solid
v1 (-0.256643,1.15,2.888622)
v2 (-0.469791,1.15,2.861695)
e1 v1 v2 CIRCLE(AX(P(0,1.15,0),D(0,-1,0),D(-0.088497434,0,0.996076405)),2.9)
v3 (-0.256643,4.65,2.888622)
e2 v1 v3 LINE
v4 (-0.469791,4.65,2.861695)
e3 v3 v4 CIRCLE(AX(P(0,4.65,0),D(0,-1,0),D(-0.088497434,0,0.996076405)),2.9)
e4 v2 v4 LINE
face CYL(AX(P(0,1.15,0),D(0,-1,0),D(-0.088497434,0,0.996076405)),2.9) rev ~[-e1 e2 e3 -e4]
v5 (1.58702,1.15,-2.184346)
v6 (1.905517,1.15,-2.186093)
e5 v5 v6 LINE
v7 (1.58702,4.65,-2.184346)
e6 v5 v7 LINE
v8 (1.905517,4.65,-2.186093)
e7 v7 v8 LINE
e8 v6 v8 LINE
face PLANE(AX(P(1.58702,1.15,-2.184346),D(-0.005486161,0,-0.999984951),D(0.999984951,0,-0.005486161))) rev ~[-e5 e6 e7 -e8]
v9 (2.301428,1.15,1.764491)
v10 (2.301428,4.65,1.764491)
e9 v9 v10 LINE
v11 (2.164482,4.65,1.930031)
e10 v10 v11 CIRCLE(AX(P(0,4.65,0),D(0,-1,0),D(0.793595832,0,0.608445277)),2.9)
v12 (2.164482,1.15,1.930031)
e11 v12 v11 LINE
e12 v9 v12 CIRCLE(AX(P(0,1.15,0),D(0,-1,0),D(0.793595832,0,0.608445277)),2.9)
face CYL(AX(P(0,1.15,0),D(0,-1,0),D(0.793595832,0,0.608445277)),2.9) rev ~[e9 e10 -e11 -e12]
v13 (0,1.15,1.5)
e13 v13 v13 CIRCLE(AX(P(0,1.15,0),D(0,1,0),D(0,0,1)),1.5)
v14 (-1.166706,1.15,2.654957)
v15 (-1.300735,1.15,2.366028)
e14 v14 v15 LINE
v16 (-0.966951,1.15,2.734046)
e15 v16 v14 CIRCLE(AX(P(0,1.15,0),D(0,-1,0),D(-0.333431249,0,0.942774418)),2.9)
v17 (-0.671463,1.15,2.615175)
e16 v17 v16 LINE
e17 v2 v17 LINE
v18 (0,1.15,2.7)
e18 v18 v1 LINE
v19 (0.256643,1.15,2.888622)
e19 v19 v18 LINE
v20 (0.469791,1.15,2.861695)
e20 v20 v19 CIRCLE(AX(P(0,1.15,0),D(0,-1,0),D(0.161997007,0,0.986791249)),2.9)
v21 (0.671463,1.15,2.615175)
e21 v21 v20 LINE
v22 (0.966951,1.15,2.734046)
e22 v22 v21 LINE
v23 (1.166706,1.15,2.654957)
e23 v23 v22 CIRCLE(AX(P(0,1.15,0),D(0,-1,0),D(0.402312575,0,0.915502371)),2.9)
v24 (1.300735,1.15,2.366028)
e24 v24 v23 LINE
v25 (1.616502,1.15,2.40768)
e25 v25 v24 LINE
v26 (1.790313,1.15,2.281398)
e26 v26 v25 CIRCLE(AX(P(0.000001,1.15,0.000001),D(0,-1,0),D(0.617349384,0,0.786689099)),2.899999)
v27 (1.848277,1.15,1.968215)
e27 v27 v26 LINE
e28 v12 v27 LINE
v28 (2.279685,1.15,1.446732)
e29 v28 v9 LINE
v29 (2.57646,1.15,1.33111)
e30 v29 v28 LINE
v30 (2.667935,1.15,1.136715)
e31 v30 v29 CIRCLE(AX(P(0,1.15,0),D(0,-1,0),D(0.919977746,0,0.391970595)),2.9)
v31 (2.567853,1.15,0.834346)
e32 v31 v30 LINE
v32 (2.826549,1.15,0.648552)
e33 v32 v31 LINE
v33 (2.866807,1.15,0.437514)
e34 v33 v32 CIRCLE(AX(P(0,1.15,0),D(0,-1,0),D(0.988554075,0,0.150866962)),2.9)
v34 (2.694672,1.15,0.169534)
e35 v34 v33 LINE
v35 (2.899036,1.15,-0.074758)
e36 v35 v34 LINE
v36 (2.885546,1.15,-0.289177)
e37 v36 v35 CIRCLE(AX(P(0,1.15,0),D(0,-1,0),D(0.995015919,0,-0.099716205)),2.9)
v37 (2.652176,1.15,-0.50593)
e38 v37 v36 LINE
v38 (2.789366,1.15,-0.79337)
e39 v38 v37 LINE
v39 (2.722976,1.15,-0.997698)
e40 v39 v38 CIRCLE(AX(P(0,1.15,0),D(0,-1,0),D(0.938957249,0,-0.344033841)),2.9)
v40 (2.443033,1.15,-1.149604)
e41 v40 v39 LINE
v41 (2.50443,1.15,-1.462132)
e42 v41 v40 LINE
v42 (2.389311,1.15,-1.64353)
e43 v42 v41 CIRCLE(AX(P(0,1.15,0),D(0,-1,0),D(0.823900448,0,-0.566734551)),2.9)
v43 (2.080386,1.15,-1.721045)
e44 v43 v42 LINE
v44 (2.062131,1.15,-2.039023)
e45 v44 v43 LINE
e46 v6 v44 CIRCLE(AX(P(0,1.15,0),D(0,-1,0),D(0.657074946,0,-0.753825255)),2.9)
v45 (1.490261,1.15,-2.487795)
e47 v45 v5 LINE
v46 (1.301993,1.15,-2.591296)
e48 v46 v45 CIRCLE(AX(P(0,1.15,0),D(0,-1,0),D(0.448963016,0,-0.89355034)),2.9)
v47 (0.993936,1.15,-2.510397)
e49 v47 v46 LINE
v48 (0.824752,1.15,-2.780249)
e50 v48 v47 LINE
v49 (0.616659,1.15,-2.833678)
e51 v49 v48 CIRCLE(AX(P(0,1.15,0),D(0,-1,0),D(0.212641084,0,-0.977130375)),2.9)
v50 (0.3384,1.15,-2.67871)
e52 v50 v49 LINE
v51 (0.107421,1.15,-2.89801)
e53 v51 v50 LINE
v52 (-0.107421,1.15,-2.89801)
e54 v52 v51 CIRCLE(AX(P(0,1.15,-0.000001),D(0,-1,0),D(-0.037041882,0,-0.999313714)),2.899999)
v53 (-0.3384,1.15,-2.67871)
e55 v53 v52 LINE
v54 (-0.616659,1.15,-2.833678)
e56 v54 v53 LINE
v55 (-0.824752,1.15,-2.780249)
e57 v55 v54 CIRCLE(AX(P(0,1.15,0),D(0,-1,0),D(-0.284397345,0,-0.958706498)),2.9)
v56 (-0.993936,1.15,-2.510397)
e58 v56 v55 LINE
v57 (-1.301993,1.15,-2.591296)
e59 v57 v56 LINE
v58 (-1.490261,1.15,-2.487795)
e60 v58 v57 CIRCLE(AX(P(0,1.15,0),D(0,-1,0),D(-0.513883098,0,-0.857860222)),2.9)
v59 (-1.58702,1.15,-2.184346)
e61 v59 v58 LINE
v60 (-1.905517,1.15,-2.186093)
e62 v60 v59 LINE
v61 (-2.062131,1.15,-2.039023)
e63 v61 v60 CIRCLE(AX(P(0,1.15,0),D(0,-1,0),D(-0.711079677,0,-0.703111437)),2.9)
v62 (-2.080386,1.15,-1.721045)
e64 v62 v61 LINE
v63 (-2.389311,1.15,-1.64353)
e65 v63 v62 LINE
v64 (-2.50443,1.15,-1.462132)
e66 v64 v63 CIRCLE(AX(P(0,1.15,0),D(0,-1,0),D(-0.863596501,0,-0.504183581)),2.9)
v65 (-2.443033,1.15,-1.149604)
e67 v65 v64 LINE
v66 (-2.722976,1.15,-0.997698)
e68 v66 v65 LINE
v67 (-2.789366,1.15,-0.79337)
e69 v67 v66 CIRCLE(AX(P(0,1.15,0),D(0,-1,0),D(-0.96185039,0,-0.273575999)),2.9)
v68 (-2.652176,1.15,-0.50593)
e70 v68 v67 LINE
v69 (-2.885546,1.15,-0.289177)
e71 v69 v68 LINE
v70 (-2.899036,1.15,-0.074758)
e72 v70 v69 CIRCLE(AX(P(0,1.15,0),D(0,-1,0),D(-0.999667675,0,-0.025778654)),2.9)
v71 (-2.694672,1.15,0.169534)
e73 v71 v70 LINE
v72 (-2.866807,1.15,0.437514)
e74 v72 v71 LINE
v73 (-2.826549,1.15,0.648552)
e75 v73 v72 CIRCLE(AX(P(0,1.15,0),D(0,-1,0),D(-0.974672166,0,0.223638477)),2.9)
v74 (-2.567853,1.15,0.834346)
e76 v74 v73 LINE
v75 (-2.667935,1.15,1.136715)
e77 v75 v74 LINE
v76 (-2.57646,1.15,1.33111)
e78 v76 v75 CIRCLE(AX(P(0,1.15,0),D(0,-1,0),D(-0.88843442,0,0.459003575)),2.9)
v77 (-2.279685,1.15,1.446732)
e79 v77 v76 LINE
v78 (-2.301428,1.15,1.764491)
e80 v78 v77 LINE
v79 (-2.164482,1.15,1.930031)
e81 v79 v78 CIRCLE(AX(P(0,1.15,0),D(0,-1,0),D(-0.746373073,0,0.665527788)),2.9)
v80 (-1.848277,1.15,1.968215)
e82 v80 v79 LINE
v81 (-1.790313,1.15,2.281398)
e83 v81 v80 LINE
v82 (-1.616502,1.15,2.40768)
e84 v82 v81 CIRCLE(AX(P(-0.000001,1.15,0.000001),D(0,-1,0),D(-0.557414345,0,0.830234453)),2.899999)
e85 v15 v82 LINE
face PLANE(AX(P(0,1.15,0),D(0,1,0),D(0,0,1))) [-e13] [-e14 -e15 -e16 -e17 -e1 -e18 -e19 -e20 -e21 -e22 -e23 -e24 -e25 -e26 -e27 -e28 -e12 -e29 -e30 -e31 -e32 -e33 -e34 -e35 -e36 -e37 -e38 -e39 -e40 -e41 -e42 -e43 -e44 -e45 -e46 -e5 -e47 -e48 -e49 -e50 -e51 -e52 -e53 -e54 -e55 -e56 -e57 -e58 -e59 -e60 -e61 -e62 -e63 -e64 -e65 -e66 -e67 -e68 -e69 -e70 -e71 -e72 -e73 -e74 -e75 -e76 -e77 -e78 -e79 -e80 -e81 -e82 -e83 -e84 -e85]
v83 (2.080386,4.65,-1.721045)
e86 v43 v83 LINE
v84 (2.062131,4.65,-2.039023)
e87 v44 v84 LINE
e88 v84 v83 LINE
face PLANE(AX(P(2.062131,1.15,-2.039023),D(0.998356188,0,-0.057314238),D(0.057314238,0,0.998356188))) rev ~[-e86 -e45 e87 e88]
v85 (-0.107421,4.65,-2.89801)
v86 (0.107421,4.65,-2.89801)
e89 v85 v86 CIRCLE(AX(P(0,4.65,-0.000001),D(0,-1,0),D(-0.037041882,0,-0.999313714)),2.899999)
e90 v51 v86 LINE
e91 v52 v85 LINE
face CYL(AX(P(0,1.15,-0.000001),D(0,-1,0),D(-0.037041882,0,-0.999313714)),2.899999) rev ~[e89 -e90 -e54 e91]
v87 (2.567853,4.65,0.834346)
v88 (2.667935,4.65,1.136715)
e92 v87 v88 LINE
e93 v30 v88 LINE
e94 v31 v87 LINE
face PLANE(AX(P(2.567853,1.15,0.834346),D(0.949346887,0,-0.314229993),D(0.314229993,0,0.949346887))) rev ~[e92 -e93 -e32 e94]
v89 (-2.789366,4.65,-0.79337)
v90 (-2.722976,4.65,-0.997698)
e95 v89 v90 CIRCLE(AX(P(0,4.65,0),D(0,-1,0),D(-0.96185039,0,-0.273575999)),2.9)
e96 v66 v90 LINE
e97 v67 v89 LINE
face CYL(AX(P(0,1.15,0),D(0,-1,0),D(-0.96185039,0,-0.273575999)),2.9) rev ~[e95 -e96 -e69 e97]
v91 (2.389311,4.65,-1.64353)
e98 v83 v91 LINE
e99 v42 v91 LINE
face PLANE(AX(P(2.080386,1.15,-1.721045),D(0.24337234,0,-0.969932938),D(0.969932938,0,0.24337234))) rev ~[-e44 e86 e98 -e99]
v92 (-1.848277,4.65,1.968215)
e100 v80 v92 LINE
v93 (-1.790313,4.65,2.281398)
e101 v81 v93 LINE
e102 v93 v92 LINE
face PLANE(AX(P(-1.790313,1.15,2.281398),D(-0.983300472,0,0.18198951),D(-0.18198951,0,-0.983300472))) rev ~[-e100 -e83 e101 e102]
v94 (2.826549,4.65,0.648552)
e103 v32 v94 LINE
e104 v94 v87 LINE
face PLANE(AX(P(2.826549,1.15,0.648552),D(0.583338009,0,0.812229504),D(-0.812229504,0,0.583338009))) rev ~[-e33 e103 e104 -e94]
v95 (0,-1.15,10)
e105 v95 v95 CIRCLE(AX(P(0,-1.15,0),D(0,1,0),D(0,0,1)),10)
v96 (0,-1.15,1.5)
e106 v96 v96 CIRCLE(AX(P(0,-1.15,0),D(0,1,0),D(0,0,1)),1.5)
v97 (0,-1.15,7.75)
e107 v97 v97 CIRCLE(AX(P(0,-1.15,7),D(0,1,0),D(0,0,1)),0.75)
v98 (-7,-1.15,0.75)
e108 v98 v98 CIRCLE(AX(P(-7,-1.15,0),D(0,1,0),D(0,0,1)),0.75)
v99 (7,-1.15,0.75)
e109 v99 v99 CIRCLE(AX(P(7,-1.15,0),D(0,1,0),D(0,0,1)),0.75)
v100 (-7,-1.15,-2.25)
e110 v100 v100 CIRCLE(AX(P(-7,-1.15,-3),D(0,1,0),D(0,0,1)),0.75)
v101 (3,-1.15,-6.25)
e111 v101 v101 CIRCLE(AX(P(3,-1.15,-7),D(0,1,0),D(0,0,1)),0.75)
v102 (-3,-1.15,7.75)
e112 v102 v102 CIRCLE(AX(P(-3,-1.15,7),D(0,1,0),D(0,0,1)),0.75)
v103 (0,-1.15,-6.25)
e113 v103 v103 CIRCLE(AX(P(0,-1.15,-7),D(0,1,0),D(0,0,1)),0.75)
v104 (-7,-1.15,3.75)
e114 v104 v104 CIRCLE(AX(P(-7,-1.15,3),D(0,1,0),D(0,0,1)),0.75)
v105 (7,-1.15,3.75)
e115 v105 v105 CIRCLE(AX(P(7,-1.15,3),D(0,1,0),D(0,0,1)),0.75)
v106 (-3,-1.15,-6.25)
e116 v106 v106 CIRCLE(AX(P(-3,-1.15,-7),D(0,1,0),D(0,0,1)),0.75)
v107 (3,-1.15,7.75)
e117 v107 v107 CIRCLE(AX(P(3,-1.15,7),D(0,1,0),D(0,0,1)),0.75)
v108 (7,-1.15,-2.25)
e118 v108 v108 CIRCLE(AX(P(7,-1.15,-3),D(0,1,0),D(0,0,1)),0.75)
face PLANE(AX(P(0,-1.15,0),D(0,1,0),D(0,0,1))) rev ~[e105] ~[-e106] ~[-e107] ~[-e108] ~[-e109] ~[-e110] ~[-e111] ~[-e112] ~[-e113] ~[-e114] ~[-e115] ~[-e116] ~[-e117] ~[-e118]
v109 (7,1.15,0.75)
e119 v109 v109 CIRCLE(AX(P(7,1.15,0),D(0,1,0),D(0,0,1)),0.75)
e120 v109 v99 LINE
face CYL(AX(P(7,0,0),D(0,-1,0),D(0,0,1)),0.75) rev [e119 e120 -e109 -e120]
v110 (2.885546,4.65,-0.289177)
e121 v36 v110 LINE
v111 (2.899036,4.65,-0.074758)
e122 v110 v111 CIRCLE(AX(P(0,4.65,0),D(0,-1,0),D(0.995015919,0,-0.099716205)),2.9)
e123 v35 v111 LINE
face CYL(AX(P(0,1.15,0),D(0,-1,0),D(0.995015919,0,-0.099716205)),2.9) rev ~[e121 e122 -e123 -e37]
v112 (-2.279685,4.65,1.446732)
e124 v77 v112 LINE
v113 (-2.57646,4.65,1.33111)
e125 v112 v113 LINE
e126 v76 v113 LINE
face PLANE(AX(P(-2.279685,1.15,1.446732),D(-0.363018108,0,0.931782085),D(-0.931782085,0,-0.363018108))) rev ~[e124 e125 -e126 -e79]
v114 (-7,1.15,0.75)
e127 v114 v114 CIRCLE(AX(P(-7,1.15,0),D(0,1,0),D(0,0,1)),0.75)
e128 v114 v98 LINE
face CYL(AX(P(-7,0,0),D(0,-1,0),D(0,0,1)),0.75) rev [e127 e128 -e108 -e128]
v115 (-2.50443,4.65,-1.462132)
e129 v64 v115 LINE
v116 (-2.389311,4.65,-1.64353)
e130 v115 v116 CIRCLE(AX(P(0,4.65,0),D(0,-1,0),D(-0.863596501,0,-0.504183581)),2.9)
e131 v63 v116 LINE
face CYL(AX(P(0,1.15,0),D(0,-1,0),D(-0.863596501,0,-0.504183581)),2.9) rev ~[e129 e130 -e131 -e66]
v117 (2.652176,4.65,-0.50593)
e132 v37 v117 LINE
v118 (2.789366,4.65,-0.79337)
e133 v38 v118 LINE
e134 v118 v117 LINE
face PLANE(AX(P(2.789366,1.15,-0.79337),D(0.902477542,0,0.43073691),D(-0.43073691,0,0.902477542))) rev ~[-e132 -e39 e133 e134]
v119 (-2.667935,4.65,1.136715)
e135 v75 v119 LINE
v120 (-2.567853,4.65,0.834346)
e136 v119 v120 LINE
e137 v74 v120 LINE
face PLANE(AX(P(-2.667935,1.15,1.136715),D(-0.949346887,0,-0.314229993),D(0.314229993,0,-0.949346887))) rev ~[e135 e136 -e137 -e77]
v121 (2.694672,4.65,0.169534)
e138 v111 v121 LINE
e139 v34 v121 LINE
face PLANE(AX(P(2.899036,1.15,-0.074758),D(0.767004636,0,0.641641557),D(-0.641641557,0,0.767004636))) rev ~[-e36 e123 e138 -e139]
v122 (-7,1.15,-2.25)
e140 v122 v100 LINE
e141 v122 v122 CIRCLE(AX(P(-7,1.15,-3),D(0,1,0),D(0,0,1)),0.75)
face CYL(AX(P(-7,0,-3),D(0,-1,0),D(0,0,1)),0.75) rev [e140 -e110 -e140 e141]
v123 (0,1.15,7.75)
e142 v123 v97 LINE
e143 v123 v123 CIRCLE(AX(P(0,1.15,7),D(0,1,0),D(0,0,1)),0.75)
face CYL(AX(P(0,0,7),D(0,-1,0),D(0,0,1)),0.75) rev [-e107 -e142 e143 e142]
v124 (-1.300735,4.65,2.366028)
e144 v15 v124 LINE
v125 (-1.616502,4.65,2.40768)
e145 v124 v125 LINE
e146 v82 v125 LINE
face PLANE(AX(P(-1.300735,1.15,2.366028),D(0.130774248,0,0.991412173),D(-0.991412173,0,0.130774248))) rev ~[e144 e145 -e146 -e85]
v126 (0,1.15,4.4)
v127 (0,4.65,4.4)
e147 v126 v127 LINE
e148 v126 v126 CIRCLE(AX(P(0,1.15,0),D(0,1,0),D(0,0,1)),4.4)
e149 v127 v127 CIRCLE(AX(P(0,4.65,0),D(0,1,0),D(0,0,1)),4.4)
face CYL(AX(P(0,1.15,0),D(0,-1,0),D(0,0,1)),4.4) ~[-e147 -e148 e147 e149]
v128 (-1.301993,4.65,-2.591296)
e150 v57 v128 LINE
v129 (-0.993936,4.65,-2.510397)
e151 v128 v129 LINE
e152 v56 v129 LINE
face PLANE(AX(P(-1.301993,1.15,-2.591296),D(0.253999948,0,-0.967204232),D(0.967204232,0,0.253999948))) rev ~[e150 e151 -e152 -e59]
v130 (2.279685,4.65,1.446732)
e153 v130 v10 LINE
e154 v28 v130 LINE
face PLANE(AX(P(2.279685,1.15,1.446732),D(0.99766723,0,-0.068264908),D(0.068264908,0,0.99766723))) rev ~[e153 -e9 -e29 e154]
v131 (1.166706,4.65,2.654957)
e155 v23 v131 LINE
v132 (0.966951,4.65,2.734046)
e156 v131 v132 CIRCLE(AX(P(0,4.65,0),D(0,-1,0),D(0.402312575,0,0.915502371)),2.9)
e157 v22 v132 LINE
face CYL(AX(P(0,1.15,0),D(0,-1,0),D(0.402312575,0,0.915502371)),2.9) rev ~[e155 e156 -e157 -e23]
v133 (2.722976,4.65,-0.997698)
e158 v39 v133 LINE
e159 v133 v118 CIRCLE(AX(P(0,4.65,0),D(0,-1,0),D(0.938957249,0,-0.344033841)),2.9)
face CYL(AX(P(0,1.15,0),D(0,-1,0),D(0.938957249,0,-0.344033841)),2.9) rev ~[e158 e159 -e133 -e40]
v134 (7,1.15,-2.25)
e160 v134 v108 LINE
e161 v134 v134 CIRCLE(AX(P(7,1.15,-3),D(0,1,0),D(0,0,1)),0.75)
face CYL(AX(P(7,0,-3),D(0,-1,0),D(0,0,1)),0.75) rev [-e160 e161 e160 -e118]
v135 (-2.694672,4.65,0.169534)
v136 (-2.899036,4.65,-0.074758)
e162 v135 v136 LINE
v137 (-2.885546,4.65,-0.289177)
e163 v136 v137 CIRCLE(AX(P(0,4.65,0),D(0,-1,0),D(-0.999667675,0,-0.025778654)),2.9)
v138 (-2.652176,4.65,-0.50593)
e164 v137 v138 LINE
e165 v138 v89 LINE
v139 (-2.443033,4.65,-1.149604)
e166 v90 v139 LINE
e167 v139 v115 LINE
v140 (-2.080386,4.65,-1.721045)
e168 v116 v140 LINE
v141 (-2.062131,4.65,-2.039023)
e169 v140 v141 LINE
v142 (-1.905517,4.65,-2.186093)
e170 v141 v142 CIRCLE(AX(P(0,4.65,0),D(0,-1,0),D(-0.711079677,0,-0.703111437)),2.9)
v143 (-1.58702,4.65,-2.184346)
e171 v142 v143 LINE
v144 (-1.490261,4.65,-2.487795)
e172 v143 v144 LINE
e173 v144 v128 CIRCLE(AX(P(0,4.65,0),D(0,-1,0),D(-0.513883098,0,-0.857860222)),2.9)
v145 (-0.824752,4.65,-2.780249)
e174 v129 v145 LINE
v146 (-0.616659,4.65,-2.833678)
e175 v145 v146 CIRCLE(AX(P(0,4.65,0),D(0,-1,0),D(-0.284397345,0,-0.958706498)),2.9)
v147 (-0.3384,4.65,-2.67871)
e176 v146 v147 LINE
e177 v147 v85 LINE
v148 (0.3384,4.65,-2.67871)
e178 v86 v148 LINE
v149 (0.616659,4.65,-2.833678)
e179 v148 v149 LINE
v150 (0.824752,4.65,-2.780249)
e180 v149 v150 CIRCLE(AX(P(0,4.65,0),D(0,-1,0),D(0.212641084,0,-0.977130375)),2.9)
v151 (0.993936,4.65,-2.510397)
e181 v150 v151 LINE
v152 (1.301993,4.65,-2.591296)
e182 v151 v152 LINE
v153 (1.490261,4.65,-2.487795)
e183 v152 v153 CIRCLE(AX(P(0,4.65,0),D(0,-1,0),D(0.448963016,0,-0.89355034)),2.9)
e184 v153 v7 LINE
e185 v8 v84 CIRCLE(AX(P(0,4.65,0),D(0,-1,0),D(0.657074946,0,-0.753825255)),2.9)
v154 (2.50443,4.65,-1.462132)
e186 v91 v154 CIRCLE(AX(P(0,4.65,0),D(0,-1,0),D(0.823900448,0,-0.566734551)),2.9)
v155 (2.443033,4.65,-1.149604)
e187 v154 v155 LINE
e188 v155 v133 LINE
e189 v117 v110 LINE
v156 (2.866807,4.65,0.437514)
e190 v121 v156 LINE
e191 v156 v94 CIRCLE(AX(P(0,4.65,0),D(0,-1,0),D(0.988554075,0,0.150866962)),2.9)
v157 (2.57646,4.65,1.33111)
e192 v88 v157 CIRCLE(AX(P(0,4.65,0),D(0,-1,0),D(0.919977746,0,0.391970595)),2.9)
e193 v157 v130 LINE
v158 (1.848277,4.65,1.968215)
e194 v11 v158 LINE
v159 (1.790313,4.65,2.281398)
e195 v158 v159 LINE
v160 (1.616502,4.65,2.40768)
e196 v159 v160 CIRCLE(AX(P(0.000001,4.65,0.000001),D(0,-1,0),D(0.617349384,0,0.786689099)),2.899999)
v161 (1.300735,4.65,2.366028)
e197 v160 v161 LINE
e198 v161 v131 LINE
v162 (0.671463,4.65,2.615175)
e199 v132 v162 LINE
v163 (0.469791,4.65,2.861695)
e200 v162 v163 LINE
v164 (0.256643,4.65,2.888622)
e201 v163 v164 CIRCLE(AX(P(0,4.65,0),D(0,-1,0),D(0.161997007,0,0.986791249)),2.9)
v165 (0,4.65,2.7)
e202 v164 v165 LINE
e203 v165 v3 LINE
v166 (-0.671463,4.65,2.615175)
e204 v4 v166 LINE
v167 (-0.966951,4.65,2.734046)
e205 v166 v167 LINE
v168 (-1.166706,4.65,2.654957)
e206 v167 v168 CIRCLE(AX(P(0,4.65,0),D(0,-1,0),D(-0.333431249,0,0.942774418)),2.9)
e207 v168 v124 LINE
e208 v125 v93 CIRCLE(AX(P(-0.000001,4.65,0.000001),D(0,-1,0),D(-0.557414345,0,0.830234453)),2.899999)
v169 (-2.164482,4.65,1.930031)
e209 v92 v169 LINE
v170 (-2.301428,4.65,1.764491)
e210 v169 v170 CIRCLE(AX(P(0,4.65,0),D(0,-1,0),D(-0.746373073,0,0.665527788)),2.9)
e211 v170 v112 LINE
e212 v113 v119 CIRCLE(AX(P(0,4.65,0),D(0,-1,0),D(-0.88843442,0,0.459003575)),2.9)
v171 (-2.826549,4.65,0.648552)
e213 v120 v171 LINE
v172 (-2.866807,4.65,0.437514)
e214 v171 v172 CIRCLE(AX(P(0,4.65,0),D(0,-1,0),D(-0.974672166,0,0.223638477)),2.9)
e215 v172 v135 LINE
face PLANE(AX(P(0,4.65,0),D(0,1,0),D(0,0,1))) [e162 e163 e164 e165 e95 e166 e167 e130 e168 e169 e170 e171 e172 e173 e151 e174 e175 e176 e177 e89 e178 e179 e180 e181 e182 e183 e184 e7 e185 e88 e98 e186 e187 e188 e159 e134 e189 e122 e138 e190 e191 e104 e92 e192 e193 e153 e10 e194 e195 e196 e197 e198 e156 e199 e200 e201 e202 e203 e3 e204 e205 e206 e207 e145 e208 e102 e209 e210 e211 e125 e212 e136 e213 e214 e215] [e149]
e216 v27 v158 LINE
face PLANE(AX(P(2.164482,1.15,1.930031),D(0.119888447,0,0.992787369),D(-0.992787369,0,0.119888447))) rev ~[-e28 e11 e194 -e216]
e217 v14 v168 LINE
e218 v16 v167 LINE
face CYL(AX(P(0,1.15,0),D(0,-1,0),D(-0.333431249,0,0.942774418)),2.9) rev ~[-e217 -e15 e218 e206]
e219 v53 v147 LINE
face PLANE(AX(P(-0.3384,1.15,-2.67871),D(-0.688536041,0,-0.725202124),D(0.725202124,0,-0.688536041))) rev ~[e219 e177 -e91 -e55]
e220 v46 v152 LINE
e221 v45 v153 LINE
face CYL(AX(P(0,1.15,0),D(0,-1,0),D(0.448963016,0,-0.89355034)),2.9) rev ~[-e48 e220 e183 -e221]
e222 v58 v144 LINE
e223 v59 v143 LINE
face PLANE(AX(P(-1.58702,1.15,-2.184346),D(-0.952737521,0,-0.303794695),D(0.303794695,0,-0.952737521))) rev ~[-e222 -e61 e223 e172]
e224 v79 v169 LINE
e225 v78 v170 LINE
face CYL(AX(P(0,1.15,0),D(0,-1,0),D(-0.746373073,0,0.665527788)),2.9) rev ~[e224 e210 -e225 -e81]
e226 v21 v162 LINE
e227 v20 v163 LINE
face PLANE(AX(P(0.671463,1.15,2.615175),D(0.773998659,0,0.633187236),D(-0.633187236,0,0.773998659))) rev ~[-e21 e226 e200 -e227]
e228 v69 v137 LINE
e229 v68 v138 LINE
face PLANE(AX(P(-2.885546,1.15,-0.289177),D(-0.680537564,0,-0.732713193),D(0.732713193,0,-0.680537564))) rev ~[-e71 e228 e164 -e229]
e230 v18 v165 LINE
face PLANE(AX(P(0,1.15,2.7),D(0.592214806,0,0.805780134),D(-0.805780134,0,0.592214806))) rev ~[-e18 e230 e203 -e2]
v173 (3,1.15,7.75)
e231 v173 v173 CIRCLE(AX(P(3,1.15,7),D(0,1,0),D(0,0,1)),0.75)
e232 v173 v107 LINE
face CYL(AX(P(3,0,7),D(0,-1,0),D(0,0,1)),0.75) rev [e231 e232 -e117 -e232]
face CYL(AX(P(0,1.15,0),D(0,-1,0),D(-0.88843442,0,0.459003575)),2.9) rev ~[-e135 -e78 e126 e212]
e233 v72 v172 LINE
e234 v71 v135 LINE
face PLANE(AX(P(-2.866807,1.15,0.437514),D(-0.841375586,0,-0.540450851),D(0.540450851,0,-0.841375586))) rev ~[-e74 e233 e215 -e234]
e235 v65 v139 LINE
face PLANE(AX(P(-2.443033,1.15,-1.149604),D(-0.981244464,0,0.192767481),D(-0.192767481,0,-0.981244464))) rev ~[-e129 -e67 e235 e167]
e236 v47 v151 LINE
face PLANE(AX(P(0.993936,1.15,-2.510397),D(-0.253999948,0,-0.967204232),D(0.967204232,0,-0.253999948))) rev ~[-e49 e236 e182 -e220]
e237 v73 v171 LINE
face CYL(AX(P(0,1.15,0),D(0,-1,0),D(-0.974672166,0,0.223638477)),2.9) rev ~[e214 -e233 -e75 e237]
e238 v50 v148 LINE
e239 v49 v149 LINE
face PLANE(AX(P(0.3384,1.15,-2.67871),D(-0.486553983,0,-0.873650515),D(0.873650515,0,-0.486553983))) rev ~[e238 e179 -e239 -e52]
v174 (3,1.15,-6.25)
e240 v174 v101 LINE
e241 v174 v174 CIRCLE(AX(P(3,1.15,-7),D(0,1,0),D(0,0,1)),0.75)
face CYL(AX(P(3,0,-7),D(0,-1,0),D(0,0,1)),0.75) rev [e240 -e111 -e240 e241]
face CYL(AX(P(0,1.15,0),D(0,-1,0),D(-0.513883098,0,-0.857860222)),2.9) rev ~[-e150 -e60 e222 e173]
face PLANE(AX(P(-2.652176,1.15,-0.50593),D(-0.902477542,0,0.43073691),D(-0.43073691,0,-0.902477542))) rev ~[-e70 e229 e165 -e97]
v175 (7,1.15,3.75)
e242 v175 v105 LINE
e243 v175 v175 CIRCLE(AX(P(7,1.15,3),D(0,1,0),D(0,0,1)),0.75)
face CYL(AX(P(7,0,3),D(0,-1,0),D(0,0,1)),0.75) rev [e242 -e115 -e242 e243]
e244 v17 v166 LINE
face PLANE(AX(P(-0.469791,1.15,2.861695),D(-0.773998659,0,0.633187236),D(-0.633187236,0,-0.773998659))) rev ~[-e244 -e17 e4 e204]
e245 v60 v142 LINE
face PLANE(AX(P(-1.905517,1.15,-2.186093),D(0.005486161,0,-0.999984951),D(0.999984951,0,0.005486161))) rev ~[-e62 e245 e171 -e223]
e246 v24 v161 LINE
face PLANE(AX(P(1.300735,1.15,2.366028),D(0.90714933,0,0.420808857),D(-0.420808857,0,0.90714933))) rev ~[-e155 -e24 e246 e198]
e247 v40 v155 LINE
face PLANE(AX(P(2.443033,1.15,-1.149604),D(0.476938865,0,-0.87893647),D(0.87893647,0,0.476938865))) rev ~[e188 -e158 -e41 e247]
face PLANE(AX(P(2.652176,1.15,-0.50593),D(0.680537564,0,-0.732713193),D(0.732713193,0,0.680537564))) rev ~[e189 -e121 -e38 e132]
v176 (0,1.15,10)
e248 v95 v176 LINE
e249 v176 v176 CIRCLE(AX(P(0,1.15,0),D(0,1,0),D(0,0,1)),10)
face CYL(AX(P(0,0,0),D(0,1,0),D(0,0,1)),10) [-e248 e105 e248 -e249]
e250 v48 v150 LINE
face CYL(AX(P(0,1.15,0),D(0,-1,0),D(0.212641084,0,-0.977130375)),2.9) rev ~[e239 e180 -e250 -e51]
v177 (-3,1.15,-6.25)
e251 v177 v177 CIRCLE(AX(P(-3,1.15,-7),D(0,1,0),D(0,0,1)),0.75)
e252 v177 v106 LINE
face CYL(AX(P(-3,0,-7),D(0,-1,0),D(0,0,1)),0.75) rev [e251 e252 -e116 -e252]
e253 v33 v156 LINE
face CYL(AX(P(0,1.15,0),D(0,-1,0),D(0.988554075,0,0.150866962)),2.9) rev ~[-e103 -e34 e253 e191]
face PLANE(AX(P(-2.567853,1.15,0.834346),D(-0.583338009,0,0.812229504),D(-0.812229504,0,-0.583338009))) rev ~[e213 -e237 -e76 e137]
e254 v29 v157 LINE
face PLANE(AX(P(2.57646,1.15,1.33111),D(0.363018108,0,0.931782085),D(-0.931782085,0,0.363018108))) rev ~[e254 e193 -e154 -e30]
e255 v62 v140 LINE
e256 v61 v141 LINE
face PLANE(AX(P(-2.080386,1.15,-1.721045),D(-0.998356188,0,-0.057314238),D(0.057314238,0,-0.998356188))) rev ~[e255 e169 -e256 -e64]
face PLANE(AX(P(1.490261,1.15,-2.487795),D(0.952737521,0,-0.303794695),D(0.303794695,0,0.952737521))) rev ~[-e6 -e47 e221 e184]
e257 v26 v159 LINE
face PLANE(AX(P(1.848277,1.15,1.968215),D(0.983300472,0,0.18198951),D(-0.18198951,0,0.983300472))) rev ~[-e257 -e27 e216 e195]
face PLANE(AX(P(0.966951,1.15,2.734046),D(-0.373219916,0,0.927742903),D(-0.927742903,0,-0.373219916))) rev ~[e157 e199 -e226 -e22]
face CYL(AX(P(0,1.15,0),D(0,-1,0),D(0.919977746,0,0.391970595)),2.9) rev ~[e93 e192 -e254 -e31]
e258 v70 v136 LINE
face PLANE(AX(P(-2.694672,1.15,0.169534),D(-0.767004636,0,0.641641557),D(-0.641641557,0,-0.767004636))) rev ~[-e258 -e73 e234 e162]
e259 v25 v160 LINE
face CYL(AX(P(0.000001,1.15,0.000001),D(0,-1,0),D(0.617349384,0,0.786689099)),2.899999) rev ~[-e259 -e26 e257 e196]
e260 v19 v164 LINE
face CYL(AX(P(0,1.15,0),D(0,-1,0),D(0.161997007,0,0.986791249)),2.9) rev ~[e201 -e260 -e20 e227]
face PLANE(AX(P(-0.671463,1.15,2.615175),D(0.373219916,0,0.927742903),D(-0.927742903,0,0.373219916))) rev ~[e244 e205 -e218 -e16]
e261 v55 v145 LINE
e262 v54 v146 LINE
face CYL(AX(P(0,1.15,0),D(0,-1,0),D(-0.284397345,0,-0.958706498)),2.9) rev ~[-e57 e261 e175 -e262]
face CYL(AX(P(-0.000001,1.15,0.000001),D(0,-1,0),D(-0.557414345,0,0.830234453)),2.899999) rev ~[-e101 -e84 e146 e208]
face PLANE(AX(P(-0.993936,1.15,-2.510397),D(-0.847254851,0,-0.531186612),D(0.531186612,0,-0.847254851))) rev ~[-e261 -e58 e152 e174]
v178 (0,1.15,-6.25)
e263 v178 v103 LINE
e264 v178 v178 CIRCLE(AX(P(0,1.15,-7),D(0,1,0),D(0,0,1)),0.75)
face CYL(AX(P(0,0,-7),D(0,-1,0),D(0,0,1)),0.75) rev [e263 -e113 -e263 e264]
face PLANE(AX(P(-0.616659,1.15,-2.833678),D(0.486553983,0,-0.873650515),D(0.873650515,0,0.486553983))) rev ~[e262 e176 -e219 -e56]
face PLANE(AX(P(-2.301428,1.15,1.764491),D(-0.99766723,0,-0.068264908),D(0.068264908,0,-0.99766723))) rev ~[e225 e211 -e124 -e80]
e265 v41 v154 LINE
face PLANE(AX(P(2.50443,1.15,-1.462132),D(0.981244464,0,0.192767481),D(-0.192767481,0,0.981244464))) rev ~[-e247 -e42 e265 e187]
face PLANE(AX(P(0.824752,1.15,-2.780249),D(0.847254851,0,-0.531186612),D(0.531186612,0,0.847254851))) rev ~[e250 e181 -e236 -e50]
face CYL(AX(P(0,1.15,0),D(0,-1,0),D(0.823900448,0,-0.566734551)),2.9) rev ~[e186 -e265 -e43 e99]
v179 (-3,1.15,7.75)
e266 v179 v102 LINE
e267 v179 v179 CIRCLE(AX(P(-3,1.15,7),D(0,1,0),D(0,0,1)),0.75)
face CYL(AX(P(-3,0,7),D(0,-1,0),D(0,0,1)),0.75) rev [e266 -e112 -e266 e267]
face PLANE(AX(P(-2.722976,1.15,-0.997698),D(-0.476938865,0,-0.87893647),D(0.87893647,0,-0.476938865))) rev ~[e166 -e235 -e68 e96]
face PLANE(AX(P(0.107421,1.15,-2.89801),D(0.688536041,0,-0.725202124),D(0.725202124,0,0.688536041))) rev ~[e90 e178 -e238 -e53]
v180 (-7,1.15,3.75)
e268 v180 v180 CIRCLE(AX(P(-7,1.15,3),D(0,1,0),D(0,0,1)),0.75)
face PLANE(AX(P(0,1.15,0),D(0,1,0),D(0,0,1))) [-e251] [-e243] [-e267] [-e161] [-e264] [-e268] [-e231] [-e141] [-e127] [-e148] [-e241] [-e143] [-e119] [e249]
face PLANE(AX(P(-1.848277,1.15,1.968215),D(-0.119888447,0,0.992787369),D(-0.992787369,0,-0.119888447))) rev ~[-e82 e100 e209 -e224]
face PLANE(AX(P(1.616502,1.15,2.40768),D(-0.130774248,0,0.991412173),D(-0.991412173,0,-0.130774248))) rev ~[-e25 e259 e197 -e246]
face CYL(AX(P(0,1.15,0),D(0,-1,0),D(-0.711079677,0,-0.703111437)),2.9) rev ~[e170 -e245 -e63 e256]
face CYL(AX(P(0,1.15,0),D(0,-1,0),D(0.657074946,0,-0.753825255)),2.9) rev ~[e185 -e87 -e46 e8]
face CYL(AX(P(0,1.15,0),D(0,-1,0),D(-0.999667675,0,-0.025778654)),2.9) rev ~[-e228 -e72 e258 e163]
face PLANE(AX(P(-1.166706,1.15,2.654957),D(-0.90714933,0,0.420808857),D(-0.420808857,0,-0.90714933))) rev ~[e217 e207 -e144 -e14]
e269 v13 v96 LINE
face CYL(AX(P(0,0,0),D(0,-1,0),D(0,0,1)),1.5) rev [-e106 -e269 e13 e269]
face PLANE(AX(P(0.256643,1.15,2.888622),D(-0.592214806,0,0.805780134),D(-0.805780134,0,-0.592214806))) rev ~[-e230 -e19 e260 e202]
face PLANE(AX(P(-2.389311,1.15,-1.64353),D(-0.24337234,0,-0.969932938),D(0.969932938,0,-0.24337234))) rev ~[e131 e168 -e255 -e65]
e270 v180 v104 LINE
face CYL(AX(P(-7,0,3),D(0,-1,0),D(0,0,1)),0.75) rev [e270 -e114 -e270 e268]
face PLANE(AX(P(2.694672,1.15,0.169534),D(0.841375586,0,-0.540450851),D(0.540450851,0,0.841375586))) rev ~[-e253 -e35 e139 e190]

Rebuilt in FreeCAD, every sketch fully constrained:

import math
import FreeCAD as App
import Part
import Sketcher
from FreeCAD import Vector
Q = App.Units.Quantity

doc = App.newDocument("Part")
params = doc.addObject("Spreadsheet::Sheet", "Params")
for row, (alias, value) in enumerate([
    ("sketch1_diameter", "12 mm"),
    ("sketch1_diameter2", "3 mm"),
    ("pad1_length", "2.3 mm"),
    ("sketch2_diameter", "8.8 mm"),
    ("sketch2_radius", "2.899999 mm"),
    ("pad2_length", "3.5 mm"),
    ("sketch3_diameter", "20 mm"),
    ("sketch3_diameter2", "3 mm"),
    ("sketch3_diameter3", "1.5 mm"),
    ("pad3_length", "2.3 mm"),
], start=1):
    params.set(f"A{row}", alias)
    params.set(f"B{row}", "=" + value)
    params.setAlias(f"B{row}", alias)

body = doc.addObject("PartDesign::Body", "Body")

sketch1 = doc.addObject("Sketcher::SketchObject", "Sketch")
body.addObject(sketch1)
sketch1.AttachmentSupport = (doc.XZ_Plane, [""])
sketch1.MapMode = "FlatFace"
sketch1.addGeometry([
    Part.Circle(Vector(0, 0, 0), Vector(0, 0, 1), 6),
    Part.Circle(Vector(0, 0, 0), Vector(0, 0, 1), 1.5),
], False)
sketch1.addConstraint([
    Sketcher.Constraint("Coincident", 0, 3, -1, 1),
    Sketcher.Constraint("Coincident", 1, 3, -1, 1),
    Sketcher.Constraint("Diameter", 0, Q("12 mm")),
    Sketcher.Constraint("Diameter", 1, Q("3 mm")),
])
sketch1.setExpression("Constraints[2]", "Params.sketch1_diameter")
sketch1.setExpression("Constraints[3]", "Params.sketch1_diameter2")
pad1 = doc.addObject("PartDesign::Pad", "Pad")
body.addObject(pad1)
pad1.Profile = sketch1
pad1.setExpression("Length", "Params.pad1_length")
pad1.Midplane = True

sketch2 = doc.addObject("Sketcher::SketchObject", "Sketch001")
body.addObject(sketch2)
sketch2.AttachmentSupport = (doc.XZ_Plane, [""])
sketch2.MapMode = "FlatFace"
sketch2.AttachmentOffset = App.Placement(Vector(0, 0, -1.15), App.Rotation())
sketch2.addGeometry([
    Part.Circle(Vector(0, 0, 0), Vector(0, 0, 1), 4.4),
    Part.ArcOfCircle(Part.Circle(Vector(0, 0, 0), Vector(0, 0, 1), 2.9), math.radians(-92.12), math.radians(-87.88)),
    Part.LineSegment(Vector(0.11, -2.9, 0), Vector(0.34, -2.68, 0)),
    Part.LineSegment(Vector(0.34, -2.68, 0), Vector(0.62, -2.83, 0)),
    Part.ArcOfCircle(Part.Circle(Vector(0, 0, 0), Vector(0, 0, 1), 2.9), math.radians(-77.72), math.radians(-73.48)),
    Part.LineSegment(Vector(0.82, -2.78, 0), Vector(0.99, -2.51, 0)),
    Part.LineSegment(Vector(0.99, -2.51, 0), Vector(1.3, -2.59, 0)),
    Part.ArcOfCircle(Part.Circle(Vector(0, 0, 0), Vector(0, 0, 1), 2.9), math.radians(-63.32), math.radians(-59.08)),
    Part.LineSegment(Vector(1.49, -2.49, 0), Vector(1.59, -2.18, 0)),
    Part.LineSegment(Vector(1.59, -2.18, 0), Vector(1.91, -2.19, 0)),
    Part.ArcOfCircle(Part.Circle(Vector(0, 0, 0), Vector(0, 0, 1), 2.9), math.radians(-48.92), math.radians(-44.68)),
    Part.LineSegment(Vector(2.06, -2.04, 0), Vector(2.08, -1.72, 0)),
    Part.LineSegment(Vector(2.08, -1.72, 0), Vector(2.39, -1.64, 0)),
    Part.ArcOfCircle(Part.Circle(Vector(0, 0, 0), Vector(0, 0, 1), 2.9), math.radians(-34.52), math.radians(-30.28)),
    Part.LineSegment(Vector(2.5, -1.46, 0), Vector(2.44, -1.15, 0)),
    Part.LineSegment(Vector(2.44, -1.15, 0), Vector(2.72, -1, 0)),
    Part.ArcOfCircle(Part.Circle(Vector(0, 0, 0), Vector(0, 0, 1), 2.9), math.radians(-20.12), math.radians(-15.88)),
    Part.LineSegment(Vector(2.79, -0.79, 0), Vector(2.65, -0.51, 0)),
    Part.LineSegment(Vector(2.65, -0.51, 0), Vector(2.89, -0.29, 0)),
    Part.ArcOfCircle(Part.Circle(Vector(0, 0, 0), Vector(0, 0, 1), 2.9), math.radians(-5.72), math.radians(-1.48)),
    Part.LineSegment(Vector(2.9, -0.07, 0), Vector(2.69, 0.17, 0)),
    Part.LineSegment(Vector(2.69, 0.17, 0), Vector(2.87, 0.44, 0)),
    Part.ArcOfCircle(Part.Circle(Vector(0, 0, 0), Vector(0, 0, 1), 2.9), math.radians(8.68), math.radians(12.92)),
    Part.LineSegment(Vector(2.83, 0.65, 0), Vector(2.57, 0.83, 0)),
    Part.LineSegment(Vector(2.57, 0.83, 0), Vector(2.67, 1.14, 0)),
    Part.ArcOfCircle(Part.Circle(Vector(0, 0, 0), Vector(0, 0, 1), 2.9), math.radians(23.08), math.radians(27.32)),
    Part.LineSegment(Vector(2.58, 1.33, 0), Vector(2.28, 1.45, 0)),
    Part.LineSegment(Vector(2.28, 1.45, 0), Vector(2.3, 1.76, 0)),
    Part.ArcOfCircle(Part.Circle(Vector(0, 0, 0), Vector(0, 0, 1), 2.9), math.radians(37.48), math.radians(41.72)),
    Part.LineSegment(Vector(2.16, 1.93, 0), Vector(1.85, 1.97, 0)),
    Part.LineSegment(Vector(1.85, 1.97, 0), Vector(1.79, 2.28, 0)),
    Part.ArcOfCircle(Part.Circle(Vector(0, 0, 0), Vector(0, 0, 1), 2.9), math.radians(51.88), math.radians(56.12)),
    Part.LineSegment(Vector(1.62, 2.41, 0), Vector(1.3, 2.37, 0)),
    Part.LineSegment(Vector(1.3, 2.37, 0), Vector(1.17, 2.65, 0)),
    Part.ArcOfCircle(Part.Circle(Vector(0, 0, 0), Vector(0, 0, 1), 2.9), math.radians(66.28), math.radians(70.52)),
    Part.LineSegment(Vector(0.97, 2.73, 0), Vector(0.67, 2.62, 0)),
    Part.LineSegment(Vector(0.67, 2.62, 0), Vector(0.47, 2.86, 0)),
    Part.ArcOfCircle(Part.Circle(Vector(0, 0, 0), Vector(0, 0, 1), 2.9), math.radians(80.68), math.radians(84.92)),
    Part.LineSegment(Vector(0.26, 2.89, 0), Vector(0, 2.7, 0)),
    Part.LineSegment(Vector(0, 2.7, 0), Vector(-0.26, 2.89, 0)),
    Part.ArcOfCircle(Part.Circle(Vector(0, 0, 0), Vector(0, 0, 1), 2.9), math.radians(95.08), math.radians(99.32)),
    Part.LineSegment(Vector(-0.47, 2.86, 0), Vector(-0.67, 2.62, 0)),
    Part.LineSegment(Vector(-0.67, 2.62, 0), Vector(-0.97, 2.73, 0)),
    Part.ArcOfCircle(Part.Circle(Vector(0, 0, 0), Vector(0, 0, 1), 2.9), math.radians(109.48), math.radians(113.72)),
    Part.LineSegment(Vector(-1.17, 2.65, 0), Vector(-1.3, 2.37, 0)),
    Part.LineSegment(Vector(-1.3, 2.37, 0), Vector(-1.62, 2.41, 0)),
    Part.ArcOfCircle(Part.Circle(Vector(0, 0, 0), Vector(0, 0, 1), 2.9), math.radians(123.88), math.radians(128.12)),
    Part.LineSegment(Vector(-1.79, 2.28, 0), Vector(-1.85, 1.97, 0)),
    Part.LineSegment(Vector(-1.85, 1.97, 0), Vector(-2.16, 1.93, 0)),
    Part.ArcOfCircle(Part.Circle(Vector(0, 0, 0), Vector(0, 0, 1), 2.9), math.radians(138.28), math.radians(142.52)),
    Part.LineSegment(Vector(-2.3, 1.76, 0), Vector(-2.28, 1.45, 0)),
    Part.LineSegment(Vector(-2.28, 1.45, 0), Vector(-2.58, 1.33, 0)),
    Part.ArcOfCircle(Part.Circle(Vector(0, 0, 0), Vector(0, 0, 1), 2.9), math.radians(152.68), math.radians(156.92)),
    Part.LineSegment(Vector(-2.67, 1.14, 0), Vector(-2.57, 0.83, 0)),
    Part.LineSegment(Vector(-2.57, 0.83, 0), Vector(-2.83, 0.65, 0)),
    Part.ArcOfCircle(Part.Circle(Vector(0, 0, 0), Vector(0, 0, 1), 2.9), math.radians(167.08), math.radians(171.32)),
    Part.LineSegment(Vector(-2.87, 0.44, 0), Vector(-2.69, 0.17, 0)),
    Part.LineSegment(Vector(-2.69, 0.17, 0), Vector(-2.9, -0.07, 0)),
    Part.ArcOfCircle(Part.Circle(Vector(0, 0, 0), Vector(0, 0, 1), 2.9), math.radians(-178.52), math.radians(-174.28)),
    Part.LineSegment(Vector(-2.89, -0.29, 0), Vector(-2.65, -0.51, 0)),
    Part.LineSegment(Vector(-2.65, -0.51, 0), Vector(-2.79, -0.79, 0)),
    Part.ArcOfCircle(Part.Circle(Vector(0, 0, 0), Vector(0, 0, 1), 2.9), math.radians(-164.12), math.radians(-159.88)),
    Part.LineSegment(Vector(-2.72, -1, 0), Vector(-2.44, -1.15, 0)),
    Part.LineSegment(Vector(-2.44, -1.15, 0), Vector(-2.5, -1.46, 0)),
    Part.ArcOfCircle(Part.Circle(Vector(0, 0, 0), Vector(0, 0, 1), 2.9), math.radians(-149.72), math.radians(-145.48)),
    Part.LineSegment(Vector(-2.39, -1.64, 0), Vector(-2.08, -1.72, 0)),
    Part.LineSegment(Vector(-2.08, -1.72, 0), Vector(-2.06, -2.04, 0)),
    Part.ArcOfCircle(Part.Circle(Vector(0, 0, 0), Vector(0, 0, 1), 2.9), math.radians(-135.32), math.radians(-131.08)),
    Part.LineSegment(Vector(-1.91, -2.19, 0), Vector(-1.59, -2.18, 0)),
    Part.LineSegment(Vector(-1.59, -2.18, 0), Vector(-1.49, -2.49, 0)),
    Part.ArcOfCircle(Part.Circle(Vector(0, 0, 0), Vector(0, 0, 1), 2.9), math.radians(-120.92), math.radians(-116.68)),
    Part.LineSegment(Vector(-1.3, -2.59, 0), Vector(-0.99, -2.51, 0)),
    Part.LineSegment(Vector(-0.99, -2.51, 0), Vector(-0.82, -2.78, 0)),
    Part.ArcOfCircle(Part.Circle(Vector(0, 0, 0), Vector(0, 0, 1), 2.9), math.radians(-106.52), math.radians(-102.28)),
    Part.LineSegment(Vector(-0.62, -2.83, 0), Vector(-0.34, -2.68, 0)),
    Part.LineSegment(Vector(-0.34, -2.68, 0), Vector(-0.11, -2.9, 0)),
], False)
sketch2.addConstraint([
    Sketcher.Constraint("Coincident", 1, 2, 2, 1),
    Sketcher.Constraint("Coincident", 2, 2, 3, 1),
    Sketcher.Constraint("Coincident", 3, 2, 4, 1),
    Sketcher.Constraint("Coincident", 4, 2, 5, 1),
    Sketcher.Constraint("Coincident", 5, 2, 6, 1),
    Sketcher.Constraint("Coincident", 6, 2, 7, 1),
    Sketcher.Constraint("Coincident", 7, 2, 8, 1),
    Sketcher.Constraint("Coincident", 8, 2, 9, 1),
    Sketcher.Constraint("Coincident", 9, 2, 10, 1),
    Sketcher.Constraint("Coincident", 10, 2, 11, 1),
    Sketcher.Constraint("Coincident", 11, 2, 12, 1),
    Sketcher.Constraint("Coincident", 12, 2, 13, 1),
    Sketcher.Constraint("Coincident", 13, 2, 14, 1),
    Sketcher.Constraint("Coincident", 14, 2, 15, 1),
    Sketcher.Constraint("Coincident", 15, 2, 16, 1),
    Sketcher.Constraint("Coincident", 16, 2, 17, 1),
    Sketcher.Constraint("Coincident", 17, 2, 18, 1),
    Sketcher.Constraint("Coincident", 18, 2, 19, 1),
    Sketcher.Constraint("Coincident", 19, 2, 20, 1),
    Sketcher.Constraint("Coincident", 20, 2, 21, 1),
    Sketcher.Constraint("Coincident", 21, 2, 22, 1),
    Sketcher.Constraint("Coincident", 22, 2, 23, 1),
    Sketcher.Constraint("Coincident", 23, 2, 24, 1),
    Sketcher.Constraint("Coincident", 24, 2, 25, 1),
    Sketcher.Constraint("Coincident", 25, 2, 26, 1),
    Sketcher.Constraint("Coincident", 26, 2, 27, 1),
    Sketcher.Constraint("Coincident", 27, 2, 28, 1),
    Sketcher.Constraint("Coincident", 28, 2, 29, 1),
    Sketcher.Constraint("Coincident", 29, 2, 30, 1),
    Sketcher.Constraint("Coincident", 30, 2, 31, 1),
    Sketcher.Constraint("Coincident", 31, 2, 32, 1),
    Sketcher.Constraint("Coincident", 32, 2, 33, 1),
    Sketcher.Constraint("Coincident", 33, 2, 34, 1),
    Sketcher.Constraint("Coincident", 34, 2, 35, 1),
    Sketcher.Constraint("Coincident", 35, 2, 36, 1),
    Sketcher.Constraint("Coincident", 36, 2, 37, 1),
    Sketcher.Constraint("Coincident", 37, 2, 38, 1),
    Sketcher.Constraint("Coincident", 38, 2, 39, 1),
    Sketcher.Constraint("Coincident", 39, 2, 40, 1),
    Sketcher.Constraint("Coincident", 40, 2, 41, 1),
    Sketcher.Constraint("Coincident", 41, 2, 42, 1),
    Sketcher.Constraint("Coincident", 42, 2, 43, 1),
    Sketcher.Constraint("Coincident", 43, 2, 44, 1),
    Sketcher.Constraint("Coincident", 44, 2, 45, 1),
    Sketcher.Constraint("Coincident", 45, 2, 46, 1),
    Sketcher.Constraint("Coincident", 46, 2, 47, 1),
    Sketcher.Constraint("Coincident", 47, 2, 48, 1),
    Sketcher.Constraint("Coincident", 48, 2, 49, 1),
    Sketcher.Constraint("Coincident", 49, 2, 50, 1),
    Sketcher.Constraint("Coincident", 50, 2, 51, 1),
    Sketcher.Constraint("Coincident", 51, 2, 52, 1),
    Sketcher.Constraint("Coincident", 52, 2, 53, 1),
    Sketcher.Constraint("Coincident", 53, 2, 54, 1),
    Sketcher.Constraint("Coincident", 54, 2, 55, 1),
    Sketcher.Constraint("Coincident", 55, 2, 56, 1),
    Sketcher.Constraint("Coincident", 56, 2, 57, 1),
    Sketcher.Constraint("Coincident", 57, 2, 58, 1),
    Sketcher.Constraint("Coincident", 58, 2, 59, 1),
    Sketcher.Constraint("Coincident", 59, 2, 60, 1),
    Sketcher.Constraint("Coincident", 60, 2, 61, 1),
    Sketcher.Constraint("Coincident", 61, 2, 62, 1),
    Sketcher.Constraint("Coincident", 62, 2, 63, 1),
    Sketcher.Constraint("Coincident", 63, 2, 64, 1),
    Sketcher.Constraint("Coincident", 64, 2, 65, 1),
    Sketcher.Constraint("Coincident", 65, 2, 66, 1),
    Sketcher.Constraint("Coincident", 66, 2, 67, 1),
    Sketcher.Constraint("Coincident", 67, 2, 68, 1),
    Sketcher.Constraint("Coincident", 68, 2, 69, 1),
    Sketcher.Constraint("Coincident", 69, 2, 70, 1),
    Sketcher.Constraint("Coincident", 70, 2, 71, 1),
    Sketcher.Constraint("Coincident", 71, 2, 72, 1),
    Sketcher.Constraint("Coincident", 72, 2, 73, 1),
    Sketcher.Constraint("Coincident", 73, 2, 74, 1),
    Sketcher.Constraint("Coincident", 74, 2, 75, 1),
    Sketcher.Constraint("Coincident", 75, 2, 1, 1),
    Sketcher.Constraint("Coincident", 0, 3, -1, 1),
    Sketcher.Constraint("Coincident", 1, 3, -1, 1),
    Sketcher.Constraint("Coincident", 4, 3, -1, 1),
    Sketcher.Constraint("Coincident", 7, 3, -1, 1),
    Sketcher.Constraint("Coincident", 10, 3, -1, 1),
    Sketcher.Constraint("Coincident", 13, 3, -1, 1),
    Sketcher.Constraint("Coincident", 16, 3, -1, 1),
    Sketcher.Constraint("Coincident", 19, 3, -1, 1),
    Sketcher.Constraint("Coincident", 22, 3, -1, 1),
    Sketcher.Constraint("Coincident", 25, 3, -1, 1),
    Sketcher.Constraint("Coincident", 28, 3, -1, 1),
    Sketcher.Constraint("Coincident", 31, 3, -1, 1),
    Sketcher.Constraint("Coincident", 34, 3, -1, 1),
    Sketcher.Constraint("Coincident", 37, 3, -1, 1),
    Sketcher.Constraint("Coincident", 40, 3, -1, 1),
    Sketcher.Constraint("Coincident", 43, 3, -1, 1),
    Sketcher.Constraint("Coincident", 46, 3, -1, 1),
    Sketcher.Constraint("Coincident", 49, 3, -1, 1),
    Sketcher.Constraint("Coincident", 52, 3, -1, 1),
    Sketcher.Constraint("Coincident", 55, 3, -1, 1),
    Sketcher.Constraint("Coincident", 58, 3, -1, 1),
    Sketcher.Constraint("Coincident", 61, 3, -1, 1),
    Sketcher.Constraint("Coincident", 64, 3, -1, 1),
    Sketcher.Constraint("Coincident", 67, 3, -1, 1),
    Sketcher.Constraint("Coincident", 70, 3, -1, 1),
    Sketcher.Constraint("Coincident", 73, 3, -1, 1),
    Sketcher.Constraint("Equal", 1, 4),
    Sketcher.Constraint("Equal", 4, 7),
    Sketcher.Constraint("Equal", 7, 10),
    Sketcher.Constraint("Equal", 10, 13),
    Sketcher.Constraint("Equal", 13, 16),
    Sketcher.Constraint("Equal", 16, 19),
    Sketcher.Constraint("Equal", 19, 22),
    Sketcher.Constraint("Equal", 22, 25),
    Sketcher.Constraint("Equal", 25, 28),
    Sketcher.Constraint("Equal", 28, 31),
    Sketcher.Constraint("Equal", 31, 34),
    Sketcher.Constraint("Equal", 34, 37),
    Sketcher.Constraint("Equal", 37, 40),
    Sketcher.Constraint("Equal", 40, 43),
    Sketcher.Constraint("Equal", 43, 46),
    Sketcher.Constraint("Equal", 46, 49),
    Sketcher.Constraint("Equal", 49, 52),
    Sketcher.Constraint("Equal", 52, 55),
    Sketcher.Constraint("Equal", 55, 58),
    Sketcher.Constraint("Equal", 58, 61),
    Sketcher.Constraint("Equal", 61, 64),
    Sketcher.Constraint("Equal", 64, 67),
    Sketcher.Constraint("Equal", 67, 70),
    Sketcher.Constraint("Equal", 70, 73),
    Sketcher.Constraint("Symmetric", 35, 2, 41, 2, -2),
    Sketcher.Constraint("Symmetric", 32, 2, 44, 2, -2),
    Sketcher.Constraint("Symmetric", 29, 2, 47, 2, -2),
    Sketcher.Constraint("Symmetric", 26, 2, 50, 2, -2),
    Sketcher.Constraint("Symmetric", 23, 2, 53, 2, -2),
    Sketcher.Constraint("Symmetric", 20, 2, 56, 2, -2),
    Sketcher.Constraint("Symmetric", 17, 2, 59, 2, -2),
    Sketcher.Constraint("Symmetric", 14, 2, 62, 2, -2),
    Sketcher.Constraint("Symmetric", 11, 2, 65, 2, -2),
    Sketcher.Constraint("Symmetric", 8, 2, 68, 2, -2),
    Sketcher.Constraint("Symmetric", 5, 2, 71, 2, -2),
    Sketcher.Constraint("Symmetric", 2, 2, 74, 2, -2),
    Sketcher.Constraint("PointOnObject", 38, 2, -2),
    Sketcher.Constraint("Horizontal", 37, 2, 39, 2),
    Sketcher.Constraint("Horizontal", 36, 2, 40, 2),
    Sketcher.Constraint("Horizontal", 34, 2, 42, 2),
    Sketcher.Constraint("Horizontal", 33, 2, 43, 2),
    Sketcher.Constraint("Horizontal", 31, 2, 45, 2),
    Sketcher.Constraint("Horizontal", 30, 2, 46, 2),
    Sketcher.Constraint("Horizontal", 28, 2, 48, 2),
    Sketcher.Constraint("Horizontal", 27, 2, 49, 2),
    Sketcher.Constraint("Horizontal", 25, 2, 51, 2),
    Sketcher.Constraint("Horizontal", 24, 2, 52, 2),
    Sketcher.Constraint("Horizontal", 22, 2, 54, 2),
    Sketcher.Constraint("Horizontal", 21, 2, 55, 2),
    Sketcher.Constraint("Horizontal", 19, 2, 57, 2),
    Sketcher.Constraint("Horizontal", 18, 2, 58, 2),
    Sketcher.Constraint("Horizontal", 16, 2, 60, 2),
    Sketcher.Constraint("Horizontal", 15, 2, 61, 2),
    Sketcher.Constraint("Horizontal", 13, 2, 63, 2),
    Sketcher.Constraint("Horizontal", 12, 2, 64, 2),
    Sketcher.Constraint("Horizontal", 10, 2, 66, 2),
    Sketcher.Constraint("Horizontal", 9, 2, 67, 2),
    Sketcher.Constraint("Horizontal", 7, 2, 69, 2),
    Sketcher.Constraint("Horizontal", 6, 2, 70, 2),
    Sketcher.Constraint("Horizontal", 4, 2, 72, 2),
    Sketcher.Constraint("Horizontal", 3, 2, 73, 2),
    Sketcher.Constraint("Horizontal", 1, 2, 75, 2),
    Sketcher.Constraint("Equal", 2, 3),
    Sketcher.Constraint("Equal", 3, 5),
    Sketcher.Constraint("Equal", 5, 6),
    Sketcher.Constraint("Equal", 6, 8),
    Sketcher.Constraint("Equal", 8, 9),
    Sketcher.Constraint("Equal", 9, 11),
    Sketcher.Constraint("Equal", 11, 12),
    Sketcher.Constraint("Equal", 12, 14),
    Sketcher.Constraint("Equal", 14, 15),
    Sketcher.Constraint("Equal", 15, 17),
    Sketcher.Constraint("Equal", 17, 18),
    Sketcher.Constraint("Equal", 18, 20),
    Sketcher.Constraint("Equal", 20, 21),
    Sketcher.Constraint("Equal", 21, 23),
    Sketcher.Constraint("Equal", 23, 24),
    Sketcher.Constraint("Equal", 24, 26),
    Sketcher.Constraint("Equal", 26, 27),
    Sketcher.Constraint("Equal", 27, 29),
    Sketcher.Constraint("Equal", 29, 30),
    Sketcher.Constraint("Equal", 30, 32),
    Sketcher.Constraint("Equal", 32, 33),
    Sketcher.Constraint("Equal", 33, 35),
    Sketcher.Constraint("Equal", 35, 36),
    Sketcher.Constraint("Equal", 36, 38),
    Sketcher.Constraint("Diameter", 0, Q("8.8 mm")),
    Sketcher.Constraint("Radius", 1, Q("2.899999 mm")),
    Sketcher.Constraint("DistanceY", -1, 1, 38, 2, Q("2.7 mm")),
    Sketcher.Constraint("Distance", 2, Q("0.318502 mm")),
    Sketcher.Constraint("DistanceX", -1, 1, 2, 2, Q("0.3384 mm")),
    Sketcher.Constraint("DistanceY", 15, 2, -1, 1, Q("0.997698 mm")),
    Sketcher.Constraint("DistanceY", -1, 1, 30, 2, Q("2.281398 mm")),
    Sketcher.Constraint("DistanceX", -1, 1, 31, 2, Q("1.616502 mm")),
    Sketcher.Constraint("DistanceX", -1, 1, 1, 2, Q("0.107421 mm")),
    Sketcher.Constraint("DistanceY", 4, 2, -1, 1, Q("2.780249 mm")),
    Sketcher.Constraint("DistanceX", -1, 1, 7, 2, Q("1.490261 mm")),
    Sketcher.Constraint("DistanceX", -1, 1, 8, 2, Q("1.58702 mm")),
    Sketcher.Constraint("DistanceX", -1, 1, 10, 2, Q("2.062131 mm")),
    Sketcher.Constraint("DistanceX", -1, 1, 12, 2, Q("2.389311 mm")),
    Sketcher.Constraint("DistanceX", -1, 1, 13, 2, Q("2.50443 mm")),
    Sketcher.Constraint("DistanceY", 16, 2, -1, 1, Q("0.79337 mm")),
    Sketcher.Constraint("DistanceY", 17, 2, -1, 1, Q("0.50593 mm")),
    Sketcher.Constraint("DistanceY", 19, 2, -1, 1, Q("0.074758 mm")),
    Sketcher.Constraint("DistanceX", -1, 1, 22, 2, Q("2.826549 mm")),
    Sketcher.Constraint("DistanceX", -1, 1, 25, 2, Q("2.57646 mm")),
    Sketcher.Constraint("DistanceY", -1, 1, 27, 2, Q("1.764491 mm")),
    Sketcher.Constraint("DistanceX", -1, 1, 28, 2, Q("2.164482 mm")),
    Sketcher.Constraint("DistanceY", -1, 1, 32, 2, Q("2.366028 mm")),
    Sketcher.Constraint("DistanceX", -1, 1, 34, 2, Q("0.966951 mm")),
    Sketcher.Constraint("DistanceX", -1, 1, 36, 2, Q("0.469791 mm")),
    Sketcher.Constraint("DistanceX", -1, 1, 5, 2, Q("0.993936 mm")),
    Sketcher.Constraint("DistanceX", -1, 1, 20, 2, Q("2.694672 mm")),
    Sketcher.Constraint("DistanceX", -1, 1, 23, 2, Q("2.567853 mm")),
])
sketch2.setExpression("Constraints[187]", "Params.sketch2_diameter")
sketch2.setExpression("Constraints[188]", "Params.sketch2_radius")
pad2 = doc.addObject("PartDesign::Pad", "Pad001")
body.addObject(pad2)
pad2.Profile = sketch2
pad2.setExpression("Length", "Params.pad2_length")
pad2.Reversed = True

sketch3 = doc.addObject("Sketcher::SketchObject", "Sketch002")
body.addObject(sketch3)
sketch3.AttachmentSupport = (doc.XZ_Plane, [""])
sketch3.MapMode = "FlatFace"
sketch3.addGeometry([
    Part.Circle(Vector(0, 0, 0), Vector(0, 0, 1), 10),
    Part.Circle(Vector(-7, -3, 0), Vector(0, 0, 1), 0.8),
    Part.Circle(Vector(-3, -7, 0), Vector(0, 0, 1), 0.8),
    Part.Circle(Vector(-7, 0, 0), Vector(0, 0, 1), 0.8),
    Part.Circle(Vector(-7, 3, 0), Vector(0, 0, 1), 0.8),
    Part.Circle(Vector(-3, 7, 0), Vector(0, 0, 1), 0.8),
    Part.Circle(Vector(0, -7, 0), Vector(0, 0, 1), 0.8),
    Part.Circle(Vector(3, -7, 0), Vector(0, 0, 1), 0.8),
    Part.Circle(Vector(7, -3, 0), Vector(0, 0, 1), 0.8),
    Part.Circle(Vector(7, 0, 0), Vector(0, 0, 1), 0.8),
    Part.Circle(Vector(0, 0, 0), Vector(0, 0, 1), 1.5),
    Part.Circle(Vector(0, 7, 0), Vector(0, 0, 1), 0.8),
    Part.Circle(Vector(3, 7, 0), Vector(0, 0, 1), 0.8),
    Part.Circle(Vector(7, 3, 0), Vector(0, 0, 1), 0.8),
], False)
sketch3.addConstraint([
    Sketcher.Constraint("Coincident", 0, 3, -1, 1),
    Sketcher.Constraint("Coincident", 10, 3, -1, 1),
    Sketcher.Constraint("Equal", 1, 2),
    Sketcher.Constraint("Equal", 2, 3),
    Sketcher.Constraint("Equal", 3, 4),
    Sketcher.Constraint("Equal", 4, 5),
    Sketcher.Constraint("Equal", 5, 6),
    Sketcher.Constraint("Equal", 6, 7),
    Sketcher.Constraint("Equal", 7, 8),
    Sketcher.Constraint("Equal", 8, 9),
    Sketcher.Constraint("Equal", 9, 11),
    Sketcher.Constraint("Equal", 11, 12),
    Sketcher.Constraint("Equal", 12, 13),
    Sketcher.Constraint("Symmetric", 5, 3, 7, 3, -1, 1),
    Sketcher.Constraint("Symmetric", 4, 3, 8, 3, -1, 1),
    Sketcher.Constraint("Symmetric", 3, 3, 9, 3, -1, 1),
    Sketcher.Constraint("Symmetric", 6, 3, 11, 3, -1, 1),
    Sketcher.Constraint("Symmetric", 2, 3, 12, 3, -1, 1),
    Sketcher.Constraint("Symmetric", 1, 3, 13, 3, -1, 1),
    Sketcher.Constraint("Symmetric", 2, 3, 7, 3, -2),
    Sketcher.Constraint("Symmetric", 1, 3, 8, 3, -2),
    Sketcher.Constraint("PointOnObject", 3, 3, -1),
    Sketcher.Constraint("PointOnObject", 6, 3, -2),
    Sketcher.Constraint("Horizontal", 2, 3, 6, 3),
    Sketcher.Constraint("Vertical", 1, 3, 3, 3),
    Sketcher.Constraint("Diameter", 0, Q("20 mm")),
    Sketcher.Constraint("Diameter", 10, Q("3 mm")),
    Sketcher.Constraint("Diameter", 1, Q("1.5 mm")),
    Sketcher.Constraint("DistanceX", 1, 3, -1, 1, Q("7 mm")),
    Sketcher.Constraint("DistanceY", 1, 3, -1, 1, Q("3 mm")),
    Sketcher.Constraint("DistanceX", 2, 3, -1, 1, Q("3 mm")),
    Sketcher.Constraint("DistanceY", 2, 3, -1, 1, Q("7 mm")),
])
sketch3.setExpression("Constraints[25]", "Params.sketch3_diameter")
sketch3.setExpression("Constraints[26]", "Params.sketch3_diameter2")
sketch3.setExpression("Constraints[27]", "Params.sketch3_diameter3")
pad3 = doc.addObject("PartDesign::Pad", "Pad002")
body.addObject(pad3)
pad3.Profile = sketch3
pad3.setExpression("Length", "Params.pad3_length")
pad3.Midplane = True

doc.recompute()
